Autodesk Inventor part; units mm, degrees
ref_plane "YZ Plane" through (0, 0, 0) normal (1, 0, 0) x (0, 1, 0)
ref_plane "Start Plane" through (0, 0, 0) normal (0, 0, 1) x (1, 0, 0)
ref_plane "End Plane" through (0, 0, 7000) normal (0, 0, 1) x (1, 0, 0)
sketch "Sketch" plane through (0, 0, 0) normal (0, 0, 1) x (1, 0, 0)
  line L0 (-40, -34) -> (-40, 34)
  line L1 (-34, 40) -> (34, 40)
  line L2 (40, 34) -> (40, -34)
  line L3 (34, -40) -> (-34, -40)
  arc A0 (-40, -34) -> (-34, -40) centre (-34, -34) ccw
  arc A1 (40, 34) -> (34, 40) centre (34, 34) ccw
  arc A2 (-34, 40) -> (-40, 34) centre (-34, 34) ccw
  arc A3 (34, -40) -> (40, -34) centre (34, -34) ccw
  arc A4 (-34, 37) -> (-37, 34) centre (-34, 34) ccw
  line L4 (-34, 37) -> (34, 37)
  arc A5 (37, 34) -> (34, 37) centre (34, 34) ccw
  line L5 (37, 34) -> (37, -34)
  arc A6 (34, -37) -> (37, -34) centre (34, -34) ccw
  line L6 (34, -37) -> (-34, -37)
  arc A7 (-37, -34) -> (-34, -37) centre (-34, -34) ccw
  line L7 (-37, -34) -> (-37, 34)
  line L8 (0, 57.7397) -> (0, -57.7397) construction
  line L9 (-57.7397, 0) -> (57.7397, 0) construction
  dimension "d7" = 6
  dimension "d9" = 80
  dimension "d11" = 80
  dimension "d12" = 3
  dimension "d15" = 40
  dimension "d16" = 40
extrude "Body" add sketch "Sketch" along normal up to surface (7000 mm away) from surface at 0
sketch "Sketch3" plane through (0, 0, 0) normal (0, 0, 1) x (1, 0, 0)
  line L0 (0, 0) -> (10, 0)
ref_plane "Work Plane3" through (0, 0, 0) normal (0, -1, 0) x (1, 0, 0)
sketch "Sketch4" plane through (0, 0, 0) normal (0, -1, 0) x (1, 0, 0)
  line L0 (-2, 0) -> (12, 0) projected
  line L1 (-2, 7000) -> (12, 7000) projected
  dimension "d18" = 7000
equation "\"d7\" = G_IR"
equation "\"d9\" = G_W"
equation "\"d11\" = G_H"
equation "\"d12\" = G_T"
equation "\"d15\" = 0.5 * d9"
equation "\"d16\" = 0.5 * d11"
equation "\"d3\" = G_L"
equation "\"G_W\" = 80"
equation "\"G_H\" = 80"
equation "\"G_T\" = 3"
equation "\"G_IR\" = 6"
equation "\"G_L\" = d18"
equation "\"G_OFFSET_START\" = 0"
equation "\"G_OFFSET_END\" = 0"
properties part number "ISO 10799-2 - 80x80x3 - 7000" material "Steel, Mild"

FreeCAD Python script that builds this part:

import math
import FreeCAD as App
import Part
import Sketcher
from FreeCAD import Vector

doc = App.newDocument("Part")
body = doc.addObject("PartDesign::Body", "Body")

sketch1 = body.newObject("Sketcher::SketchObject", "Sketch")
sketch1.AttachmentSupport = (doc.getObject("XY_Plane"), [""])
sketch1.MapMode = "FlatFace"
sketch1.addGeometry([
    Part.LineSegment(Vector(-40, 34, 0), Vector(-40, -34, 0)),
    Part.ArcOfCircle(Part.Circle(Vector(-34, -34, 0), Vector(0, 0, 1), 6), math.radians(180), math.radians(270)),
    Part.LineSegment(Vector(-34, -40, 0), Vector(34, -40, 0)),
    Part.ArcOfCircle(Part.Circle(Vector(34, -34, 0), Vector(0, 0, 1), 6), math.radians(-90), math.radians(0)),
    Part.LineSegment(Vector(40, -34, 0), Vector(40, 34, 0)),
    Part.ArcOfCircle(Part.Circle(Vector(34, 34, 0), Vector(0, 0, 1), 6), math.radians(0), math.radians(90)),
    Part.LineSegment(Vector(34, 40, 0), Vector(-34, 40, 0)),
    Part.ArcOfCircle(Part.Circle(Vector(-34, 34, 0), Vector(0, 0, 1), 6), math.radians(90), math.radians(180)),
    Part.ArcOfCircle(Part.Circle(Vector(-34, 34, 0), Vector(0, 0, 1), 3), math.radians(90), math.radians(180)),
    Part.LineSegment(Vector(-34, 37, 0), Vector(34, 37, 0)),
    Part.ArcOfCircle(Part.Circle(Vector(34, 34, 0), Vector(0, 0, 1), 3), math.radians(0), math.radians(90)),
    Part.LineSegment(Vector(37, 34, 0), Vector(37, -34, 0)),
    Part.ArcOfCircle(Part.Circle(Vector(34, -34, 0), Vector(0, 0, 1), 3), math.radians(-90), math.radians(0)),
    Part.LineSegment(Vector(34, -37, 0), Vector(-34, -37, 0)),
    Part.ArcOfCircle(Part.Circle(Vector(-34, -34, 0), Vector(0, 0, 1), 3), math.radians(180), math.radians(270)),
    Part.LineSegment(Vector(-37, -34, 0), Vector(-37, 34, 0)),
], False)
sketch1.addConstraint([
    Sketcher.Constraint("Tangent", 0, 2, 1, 1),
    Sketcher.Constraint("Tangent", 1, 2, 2, 1),
    Sketcher.Constraint("Tangent", 2, 2, 3, 1),
    Sketcher.Constraint("Tangent", 3, 2, 4, 1),
    Sketcher.Constraint("Tangent", 4, 2, 5, 1),
    Sketcher.Constraint("Tangent", 5, 2, 6, 1),
    Sketcher.Constraint("Tangent", 6, 2, 7, 1),
    Sketcher.Constraint("Tangent", 7, 2, 0, 1),
    Sketcher.Constraint("Tangent", 8, 1, 9, 1),
    Sketcher.Constraint("Tangent", 9, 2, 10, 2),
    Sketcher.Constraint("Tangent", 10, 1, 11, 1),
    Sketcher.Constraint("Tangent", 11, 2, 12, 2),
    Sketcher.Constraint("Tangent", 12, 1, 13, 1),
    Sketcher.Constraint("Tangent", 13, 2, 14, 2),
    Sketcher.Constraint("Tangent", 14, 1, 15, 1),
    Sketcher.Constraint("Tangent", 15, 2, 8, 2),
    Sketcher.Constraint("Vertical", 0),
    Sketcher.Constraint("Horizontal", 2),
    Sketcher.Constraint("Vertical", 4),
    Sketcher.Constraint("Horizontal", 6),
    Sketcher.Constraint("Horizontal", 9),
    Sketcher.Constraint("Vertical", 11),
    Sketcher.Constraint("Horizontal", 13),
    Sketcher.Constraint("Vertical", 15),
    Sketcher.Constraint("Coincident", 8, 3, 7, 3),
    Sketcher.Constraint("Coincident", 10, 3, 5, 3),
    Sketcher.Constraint("Coincident", 12, 3, 3, 3),
    Sketcher.Constraint("Equal", 1, 3),
    Sketcher.Constraint("Equal", 3, 5),
    Sketcher.Constraint("Equal", 5, 7),
    Sketcher.Constraint("Equal", 12, 14),
    Sketcher.Constraint("Symmetric", 1, 3, 5, 3, -1, 1),
    Sketcher.Constraint("Equal", 13, 0),
    Sketcher.Constraint("Radius", 1, 6.0),
    Sketcher.Constraint("Radius", 8, 3.0),
    Sketcher.Constraint("DistanceX", 0, 2, -1, 1, 40.0),
])
pad1 = body.newObject("PartDesign::Pad", "Pad")
pad1.Profile = sketch1
pad1.Length = 7000

doc.recompute()
